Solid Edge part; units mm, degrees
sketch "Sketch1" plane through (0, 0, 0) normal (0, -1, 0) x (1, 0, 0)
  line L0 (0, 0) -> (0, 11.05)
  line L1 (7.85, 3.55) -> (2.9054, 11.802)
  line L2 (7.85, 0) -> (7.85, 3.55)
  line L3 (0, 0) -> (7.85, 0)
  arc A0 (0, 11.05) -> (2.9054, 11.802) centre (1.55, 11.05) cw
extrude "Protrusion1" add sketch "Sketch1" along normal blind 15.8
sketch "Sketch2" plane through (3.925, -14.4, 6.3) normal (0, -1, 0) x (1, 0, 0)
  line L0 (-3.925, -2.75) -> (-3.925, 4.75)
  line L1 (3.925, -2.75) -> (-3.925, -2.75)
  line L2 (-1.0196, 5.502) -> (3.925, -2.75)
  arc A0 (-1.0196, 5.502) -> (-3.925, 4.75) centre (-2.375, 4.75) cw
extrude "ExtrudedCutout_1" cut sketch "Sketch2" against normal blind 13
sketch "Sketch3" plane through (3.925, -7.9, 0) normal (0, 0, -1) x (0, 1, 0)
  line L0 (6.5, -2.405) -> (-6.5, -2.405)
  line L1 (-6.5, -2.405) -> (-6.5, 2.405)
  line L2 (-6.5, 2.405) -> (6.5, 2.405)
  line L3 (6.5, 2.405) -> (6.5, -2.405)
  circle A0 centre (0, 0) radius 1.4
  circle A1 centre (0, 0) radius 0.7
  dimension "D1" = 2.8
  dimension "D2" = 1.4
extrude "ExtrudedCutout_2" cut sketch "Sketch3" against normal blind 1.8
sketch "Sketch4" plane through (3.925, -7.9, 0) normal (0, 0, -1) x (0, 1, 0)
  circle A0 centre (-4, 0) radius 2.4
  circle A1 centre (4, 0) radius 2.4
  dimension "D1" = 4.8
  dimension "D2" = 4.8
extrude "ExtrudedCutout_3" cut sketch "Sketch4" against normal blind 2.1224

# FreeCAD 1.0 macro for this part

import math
import FreeCAD as App
import Part
import Sketcher
Q = App.Units.Quantity

doc = App.newDocument("Part")
body = doc.addObject("PartDesign::Body", "Body")

# Sketch on XZ plane
sketch1 = body.newObject("Sketcher::SketchObject", "Sketch")
sketch1.AttachmentSupport = (doc.getObject("XZ_Plane"), [""])
sketch1.MapMode = "FlatFace"
sketch1.addGeometry([
    Part.LineSegment(App.Vector(0, 11.1, 0), App.Vector(0, 0, 0)),  # 0
    Part.LineSegment(App.Vector(0, 0, 0), App.Vector(7.8, 0, 0)),  # 1
    Part.LineSegment(App.Vector(7.8, 0, 0), App.Vector(7.8, 3.5, 0)),  # 2
    Part.LineSegment(App.Vector(7.8, 3.5, 0), App.Vector(2.9, 11.8, 0)),  # 3
    Part.ArcOfCircle(Part.Circle(App.Vector(1.6, 11.1, 0), App.Vector(0, 0, 1), 1.6), math.radians(29), math.radians(180)),  # 4
], False)
sketch1.addConstraint([
    Sketcher.Constraint("Coincident", 0, 2, 1, 1),
    Sketcher.Constraint("Coincident", 1, 2, 2, 1),
    Sketcher.Constraint("Coincident", 2, 2, 3, 1),
    Sketcher.Constraint("Coincident", 3, 2, 4, 1),
    Sketcher.Constraint("Tangent", 4, 2, 0, 1),
    Sketcher.Constraint("Vertical", 0),
    Sketcher.Constraint("Horizontal", 1),
    Sketcher.Constraint("Vertical", 2),
    Sketcher.Constraint("Coincident", 0, 2, -1, 1),
    Sketcher.Constraint("Radius", 4, 1.55),
    Sketcher.Constraint("DistanceX", 1, 1, 1, 2, 7.85),
    Sketcher.Constraint("DistanceY", 0, 2, 0, 1, 11.05),
    Sketcher.Constraint("DistanceY", 2, 1, 2, 2, 3.55),
    Sketcher.Constraint("Angle", 3, Q("120.93 deg")),
])
pad1 = body.newObject("PartDesign::Pad", "Pad")
pad1.Profile = sketch1
pad1.Length = 15.8

# Sketch on XZ plane
sketch2 = body.newObject("Sketcher::SketchObject", "Sketch001")
sketch2.AttachmentSupport = (doc.getObject("XZ_Plane"), [""])
sketch2.MapMode = "FlatFace"
sketch2.AttachmentOffset = App.Placement(App.Vector(0, 0, 14.4), App.Rotation())
sketch2.addGeometry([
    Part.LineSegment(App.Vector(0, 11.1, 0), App.Vector(0, 3.5, 0)),
    Part.LineSegment(App.Vector(0, 3.5, 0), App.Vector(7.8, 3.5, 0)),
    Part.LineSegment(App.Vector(7.8, 3.5, 0), App.Vector(2.9, 11.8, 0)),
    Part.ArcOfCircle(Part.Circle(App.Vector(1.6, 11.1, 0), App.Vector(0, 0, 1), 1.6), math.radians(180), math.radians(389)),
], False)
sketch2.addConstraint([
    Sketcher.Constraint("Coincident", 0, 2, 1, 1),
    Sketcher.Constraint("Coincident", 1, 2, 2, 1),
    Sketcher.Constraint("Coincident", 2, 2, 3, 2),
    Sketcher.Constraint("Tangent", 3, 1, 0, 1),
    Sketcher.Constraint("Vertical", 0),
    Sketcher.Constraint("Horizontal", 1),
    Sketcher.Constraint("PointOnObject", 0, 2, -2),
    Sketcher.Constraint("Radius", 3, 1.55),
    Sketcher.Constraint("DistanceY", 0, 2, 0, 1, 7.5),
    Sketcher.Constraint("DistanceX", 1, 1, 1, 2, 7.85),
    Sketcher.Constraint("Angle", 2, Q("120.93 deg")),
    Sketcher.Constraint("DistanceY", -1, 1, 3, 3, 11.05),
])
pocket1 = body.newObject("PartDesign::Pocket", "Pocket")
pocket1.Profile = sketch2
pocket1.Length = 13

# Sketch on XY plane
sketch3 = body.newObject("Sketcher::SketchObject", "Sketch002")
sketch3.AttachmentSupport = (doc.getObject("XY_Plane"), [""])
sketch3.MapMode = "FlatFace"
sketch3.addGeometry([
    Part.LineSegment(App.Vector(1.5, -14.4, 0), App.Vector(1.5, -1.4, 0)),  # 0
    Part.LineSegment(App.Vector(1.5, -1.4, 0), App.Vector(6.3, -1.4, 0)),  # 1
    Part.LineSegment(App.Vector(6.3, -1.4, 0), App.Vector(6.3, -14.4, 0)),  # 2
    Part.LineSegment(App.Vector(6.3, -14.4, 0), App.Vector(1.5, -14.4, 0)),  # 3
    Part.Circle(App.Vector(3.9, -7.9, 0), App.Vector(0, 0, 1), 1.4),  # 4
    Part.Circle(App.Vector(3.9, -7.9, 0), App.Vector(0, 0, 1), 0.7),  # 5
], False)
sketch3.addConstraint([
    Sketcher.Constraint("Coincident", 0, 2, 1, 1),
    Sketcher.Constraint("Coincident", 1, 2, 2, 1),
    Sketcher.Constraint("Coincident", 2, 2, 3, 1),
    Sketcher.Constraint("Coincident", 3, 2, 0, 1),
    Sketcher.Constraint("Vertical", 0),
    Sketcher.Constraint("Horizontal", 1),
    Sketcher.Constraint("Vertical", 2),
    Sketcher.Constraint("Horizontal", 3),
    Sketcher.Constraint("Coincident", 5, 3, 4, 3),
    Sketcher.Constraint("Diameter", 4, 2.8),
    Sketcher.Constraint("Diameter", 5, 1.4),
    Sketcher.Constraint("DistanceY", 0, 1, 0, 2, 13.0),
    Sketcher.Constraint("DistanceX", 1, 1, 1, 2, 4.81),
    Sketcher.Constraint("DistanceY", 4, 3, -1, 1, 7.9),
    Sketcher.Constraint("DistanceY", 0, 2, -1, 1, 1.4),
    Sketcher.Constraint("DistanceX", -1, 1, 0, 2, 1.52),
    Sketcher.Constraint("DistanceX", -1, 1, 4, 3, 3.925),
])
pocket2 = body.newObject("PartDesign::Pocket", "Pocket001")
pocket2.Profile = sketch3
pocket2.Length = 1.8
pocket2.Reversed = True

# Sketch on XY plane
sketch4 = body.newObject("Sketcher::SketchObject", "Sketch003")
sketch4.AttachmentSupport = (doc.getObject("XY_Plane"), [""])
sketch4.MapMode = "FlatFace"
sketch4.addGeometry([
    Part.Circle(App.Vector(3.9, -11.9, 0), App.Vector(0, 0, 1), 2.4),
    Part.Circle(App.Vector(3.9, -3.9, 0), App.Vector(0, 0, 1), 2.4),
], False)
sketch4.addConstraint([
    Sketcher.Constraint("Equal", 0, 1),
    Sketcher.Constraint("Vertical", 0, 3, 1, 3),
    Sketcher.Constraint("Diameter", 0, 4.8),
    Sketcher.Constraint("DistanceY", 0, 3, 1, 3, 8.0),
    Sketcher.Constraint("DistanceY", 0, 3, -1, 1, 11.9),
    Sketcher.Constraint("DistanceX", -1, 1, 0, 3, 3.925),
])
pocket3 = body.newObject("PartDesign::Pocket", "Pocket002")
pocket3.Profile = sketch4
pocket3.Length = 2.1224
pocket3.Reversed = True

doc.recompute()
